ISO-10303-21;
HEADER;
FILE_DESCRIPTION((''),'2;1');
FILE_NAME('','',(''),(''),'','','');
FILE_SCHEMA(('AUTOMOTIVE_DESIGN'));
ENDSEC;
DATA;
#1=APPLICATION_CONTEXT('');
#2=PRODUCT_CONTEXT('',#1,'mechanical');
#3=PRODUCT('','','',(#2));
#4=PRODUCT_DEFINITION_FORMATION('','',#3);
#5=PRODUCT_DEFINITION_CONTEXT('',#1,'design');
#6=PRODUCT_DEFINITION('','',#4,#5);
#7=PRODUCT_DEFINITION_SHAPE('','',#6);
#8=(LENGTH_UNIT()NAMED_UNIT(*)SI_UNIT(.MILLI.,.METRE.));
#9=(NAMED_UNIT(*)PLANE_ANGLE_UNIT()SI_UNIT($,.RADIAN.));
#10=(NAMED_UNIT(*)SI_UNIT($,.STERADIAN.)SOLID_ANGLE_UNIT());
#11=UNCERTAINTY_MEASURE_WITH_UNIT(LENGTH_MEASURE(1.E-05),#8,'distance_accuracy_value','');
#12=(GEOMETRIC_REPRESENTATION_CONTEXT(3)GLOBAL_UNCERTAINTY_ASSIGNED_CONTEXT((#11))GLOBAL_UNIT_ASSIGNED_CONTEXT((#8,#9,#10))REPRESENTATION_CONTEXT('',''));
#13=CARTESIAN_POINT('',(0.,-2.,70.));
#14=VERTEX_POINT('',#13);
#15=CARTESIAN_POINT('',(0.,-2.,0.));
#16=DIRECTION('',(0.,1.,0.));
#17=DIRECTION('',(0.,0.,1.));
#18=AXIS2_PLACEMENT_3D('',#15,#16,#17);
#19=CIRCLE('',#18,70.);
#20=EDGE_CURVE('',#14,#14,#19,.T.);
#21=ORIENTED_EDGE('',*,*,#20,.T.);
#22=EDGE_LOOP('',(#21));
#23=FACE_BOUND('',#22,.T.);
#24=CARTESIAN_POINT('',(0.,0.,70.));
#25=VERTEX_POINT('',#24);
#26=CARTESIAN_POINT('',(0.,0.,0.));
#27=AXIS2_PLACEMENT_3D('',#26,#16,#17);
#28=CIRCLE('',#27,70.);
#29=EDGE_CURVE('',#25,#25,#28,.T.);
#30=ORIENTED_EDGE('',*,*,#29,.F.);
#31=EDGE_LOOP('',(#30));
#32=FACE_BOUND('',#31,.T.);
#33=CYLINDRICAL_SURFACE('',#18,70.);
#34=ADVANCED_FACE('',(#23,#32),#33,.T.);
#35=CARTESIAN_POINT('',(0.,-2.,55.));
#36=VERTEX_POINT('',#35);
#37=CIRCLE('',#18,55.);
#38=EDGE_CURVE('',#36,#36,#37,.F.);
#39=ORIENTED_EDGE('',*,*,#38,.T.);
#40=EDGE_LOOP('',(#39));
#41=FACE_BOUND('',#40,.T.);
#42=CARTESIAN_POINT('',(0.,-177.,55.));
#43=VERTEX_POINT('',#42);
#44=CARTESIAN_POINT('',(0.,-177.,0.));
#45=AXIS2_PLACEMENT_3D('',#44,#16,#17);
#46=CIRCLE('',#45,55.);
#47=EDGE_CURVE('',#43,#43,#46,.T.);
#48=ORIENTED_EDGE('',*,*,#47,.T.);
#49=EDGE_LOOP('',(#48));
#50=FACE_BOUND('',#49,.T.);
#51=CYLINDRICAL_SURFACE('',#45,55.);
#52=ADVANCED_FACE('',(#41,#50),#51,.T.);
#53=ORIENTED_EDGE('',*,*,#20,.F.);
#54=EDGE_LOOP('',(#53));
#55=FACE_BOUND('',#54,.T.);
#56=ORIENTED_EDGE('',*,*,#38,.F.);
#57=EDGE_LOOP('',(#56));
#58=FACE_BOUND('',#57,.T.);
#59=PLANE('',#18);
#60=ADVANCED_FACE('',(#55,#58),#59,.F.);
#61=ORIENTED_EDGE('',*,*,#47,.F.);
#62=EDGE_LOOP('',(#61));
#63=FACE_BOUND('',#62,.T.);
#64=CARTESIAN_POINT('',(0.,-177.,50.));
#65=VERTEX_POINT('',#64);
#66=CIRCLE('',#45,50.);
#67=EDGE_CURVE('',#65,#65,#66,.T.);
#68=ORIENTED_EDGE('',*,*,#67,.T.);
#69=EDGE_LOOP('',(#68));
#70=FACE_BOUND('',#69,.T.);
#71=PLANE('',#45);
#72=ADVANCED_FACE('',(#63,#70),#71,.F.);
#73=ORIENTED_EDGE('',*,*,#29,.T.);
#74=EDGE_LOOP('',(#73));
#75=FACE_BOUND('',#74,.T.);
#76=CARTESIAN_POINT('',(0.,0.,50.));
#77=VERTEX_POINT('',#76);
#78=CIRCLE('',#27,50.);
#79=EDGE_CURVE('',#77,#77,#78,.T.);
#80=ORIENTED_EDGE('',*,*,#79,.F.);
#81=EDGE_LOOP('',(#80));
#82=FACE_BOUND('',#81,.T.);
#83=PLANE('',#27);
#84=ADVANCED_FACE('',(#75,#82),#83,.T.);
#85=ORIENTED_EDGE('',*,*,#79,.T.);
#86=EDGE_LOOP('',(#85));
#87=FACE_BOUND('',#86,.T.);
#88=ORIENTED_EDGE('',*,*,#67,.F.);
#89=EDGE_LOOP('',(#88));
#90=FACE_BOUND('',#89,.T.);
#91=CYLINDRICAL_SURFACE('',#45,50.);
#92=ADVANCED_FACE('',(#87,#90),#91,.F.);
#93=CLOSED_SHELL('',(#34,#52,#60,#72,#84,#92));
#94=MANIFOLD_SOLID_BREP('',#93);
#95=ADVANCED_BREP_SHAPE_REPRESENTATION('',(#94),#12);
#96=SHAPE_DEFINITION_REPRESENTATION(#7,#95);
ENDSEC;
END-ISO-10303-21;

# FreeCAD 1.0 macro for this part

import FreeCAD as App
import Part
import Sketcher
Q = App.Units.Quantity

doc = App.newDocument("Part")
body = doc.addObject("PartDesign::Body", "Body")

# Sketch on XZ plane
sketch1 = body.newObject("Sketcher::SketchObject", "Sketch")
sketch1.AttachmentSupport = (doc.getObject("XZ_Plane"), [""])
sketch1.MapMode = "FlatFace"
sketch1.addGeometry([
    Part.Circle(App.Vector(0, 0, 0), App.Vector(0, 0, 1), 55),
    Part.Circle(App.Vector(0, 0, 0), App.Vector(0, 0, 1), 50),
], False)
sketch1.addConstraint([
    Sketcher.Constraint("Coincident", 0, 3, -1, 1),
    Sketcher.Constraint("Coincident", 1, 3, -1, 1),
    Sketcher.Constraint("Diameter", 0, Q("110 mm")),
    Sketcher.Constraint("Diameter", 1, Q("100 mm")),
])
pad1 = body.newObject("PartDesign::Pad", "Pad")
pad1.Profile = sketch1
pad1.Length = 177

# Sketch on XZ plane
sketch2 = body.newObject("Sketcher::SketchObject", "Sketch001")
sketch2.AttachmentSupport = (doc.getObject("XZ_Plane"), [""])
sketch2.MapMode = "FlatFace"
sketch2.addGeometry([
    Part.Circle(App.Vector(0, 0, 0), App.Vector(0, 0, 1), 70),
    Part.Circle(App.Vector(0, 0, 0), App.Vector(0, 0, 1), 50),
], False)
sketch2.addConstraint([
    Sketcher.Constraint("Coincident", 0, 3, -1, 1),
    Sketcher.Constraint("Coincident", 1, 3, -1, 1),
    Sketcher.Constraint("Diameter", 0, Q("140 mm")),
    Sketcher.Constraint("Diameter", 1, Q("100 mm")),
])
pad2 = body.newObject("PartDesign::Pad", "Pad001")
pad2.Profile = sketch2
pad2.Length = 2

doc.recompute()
